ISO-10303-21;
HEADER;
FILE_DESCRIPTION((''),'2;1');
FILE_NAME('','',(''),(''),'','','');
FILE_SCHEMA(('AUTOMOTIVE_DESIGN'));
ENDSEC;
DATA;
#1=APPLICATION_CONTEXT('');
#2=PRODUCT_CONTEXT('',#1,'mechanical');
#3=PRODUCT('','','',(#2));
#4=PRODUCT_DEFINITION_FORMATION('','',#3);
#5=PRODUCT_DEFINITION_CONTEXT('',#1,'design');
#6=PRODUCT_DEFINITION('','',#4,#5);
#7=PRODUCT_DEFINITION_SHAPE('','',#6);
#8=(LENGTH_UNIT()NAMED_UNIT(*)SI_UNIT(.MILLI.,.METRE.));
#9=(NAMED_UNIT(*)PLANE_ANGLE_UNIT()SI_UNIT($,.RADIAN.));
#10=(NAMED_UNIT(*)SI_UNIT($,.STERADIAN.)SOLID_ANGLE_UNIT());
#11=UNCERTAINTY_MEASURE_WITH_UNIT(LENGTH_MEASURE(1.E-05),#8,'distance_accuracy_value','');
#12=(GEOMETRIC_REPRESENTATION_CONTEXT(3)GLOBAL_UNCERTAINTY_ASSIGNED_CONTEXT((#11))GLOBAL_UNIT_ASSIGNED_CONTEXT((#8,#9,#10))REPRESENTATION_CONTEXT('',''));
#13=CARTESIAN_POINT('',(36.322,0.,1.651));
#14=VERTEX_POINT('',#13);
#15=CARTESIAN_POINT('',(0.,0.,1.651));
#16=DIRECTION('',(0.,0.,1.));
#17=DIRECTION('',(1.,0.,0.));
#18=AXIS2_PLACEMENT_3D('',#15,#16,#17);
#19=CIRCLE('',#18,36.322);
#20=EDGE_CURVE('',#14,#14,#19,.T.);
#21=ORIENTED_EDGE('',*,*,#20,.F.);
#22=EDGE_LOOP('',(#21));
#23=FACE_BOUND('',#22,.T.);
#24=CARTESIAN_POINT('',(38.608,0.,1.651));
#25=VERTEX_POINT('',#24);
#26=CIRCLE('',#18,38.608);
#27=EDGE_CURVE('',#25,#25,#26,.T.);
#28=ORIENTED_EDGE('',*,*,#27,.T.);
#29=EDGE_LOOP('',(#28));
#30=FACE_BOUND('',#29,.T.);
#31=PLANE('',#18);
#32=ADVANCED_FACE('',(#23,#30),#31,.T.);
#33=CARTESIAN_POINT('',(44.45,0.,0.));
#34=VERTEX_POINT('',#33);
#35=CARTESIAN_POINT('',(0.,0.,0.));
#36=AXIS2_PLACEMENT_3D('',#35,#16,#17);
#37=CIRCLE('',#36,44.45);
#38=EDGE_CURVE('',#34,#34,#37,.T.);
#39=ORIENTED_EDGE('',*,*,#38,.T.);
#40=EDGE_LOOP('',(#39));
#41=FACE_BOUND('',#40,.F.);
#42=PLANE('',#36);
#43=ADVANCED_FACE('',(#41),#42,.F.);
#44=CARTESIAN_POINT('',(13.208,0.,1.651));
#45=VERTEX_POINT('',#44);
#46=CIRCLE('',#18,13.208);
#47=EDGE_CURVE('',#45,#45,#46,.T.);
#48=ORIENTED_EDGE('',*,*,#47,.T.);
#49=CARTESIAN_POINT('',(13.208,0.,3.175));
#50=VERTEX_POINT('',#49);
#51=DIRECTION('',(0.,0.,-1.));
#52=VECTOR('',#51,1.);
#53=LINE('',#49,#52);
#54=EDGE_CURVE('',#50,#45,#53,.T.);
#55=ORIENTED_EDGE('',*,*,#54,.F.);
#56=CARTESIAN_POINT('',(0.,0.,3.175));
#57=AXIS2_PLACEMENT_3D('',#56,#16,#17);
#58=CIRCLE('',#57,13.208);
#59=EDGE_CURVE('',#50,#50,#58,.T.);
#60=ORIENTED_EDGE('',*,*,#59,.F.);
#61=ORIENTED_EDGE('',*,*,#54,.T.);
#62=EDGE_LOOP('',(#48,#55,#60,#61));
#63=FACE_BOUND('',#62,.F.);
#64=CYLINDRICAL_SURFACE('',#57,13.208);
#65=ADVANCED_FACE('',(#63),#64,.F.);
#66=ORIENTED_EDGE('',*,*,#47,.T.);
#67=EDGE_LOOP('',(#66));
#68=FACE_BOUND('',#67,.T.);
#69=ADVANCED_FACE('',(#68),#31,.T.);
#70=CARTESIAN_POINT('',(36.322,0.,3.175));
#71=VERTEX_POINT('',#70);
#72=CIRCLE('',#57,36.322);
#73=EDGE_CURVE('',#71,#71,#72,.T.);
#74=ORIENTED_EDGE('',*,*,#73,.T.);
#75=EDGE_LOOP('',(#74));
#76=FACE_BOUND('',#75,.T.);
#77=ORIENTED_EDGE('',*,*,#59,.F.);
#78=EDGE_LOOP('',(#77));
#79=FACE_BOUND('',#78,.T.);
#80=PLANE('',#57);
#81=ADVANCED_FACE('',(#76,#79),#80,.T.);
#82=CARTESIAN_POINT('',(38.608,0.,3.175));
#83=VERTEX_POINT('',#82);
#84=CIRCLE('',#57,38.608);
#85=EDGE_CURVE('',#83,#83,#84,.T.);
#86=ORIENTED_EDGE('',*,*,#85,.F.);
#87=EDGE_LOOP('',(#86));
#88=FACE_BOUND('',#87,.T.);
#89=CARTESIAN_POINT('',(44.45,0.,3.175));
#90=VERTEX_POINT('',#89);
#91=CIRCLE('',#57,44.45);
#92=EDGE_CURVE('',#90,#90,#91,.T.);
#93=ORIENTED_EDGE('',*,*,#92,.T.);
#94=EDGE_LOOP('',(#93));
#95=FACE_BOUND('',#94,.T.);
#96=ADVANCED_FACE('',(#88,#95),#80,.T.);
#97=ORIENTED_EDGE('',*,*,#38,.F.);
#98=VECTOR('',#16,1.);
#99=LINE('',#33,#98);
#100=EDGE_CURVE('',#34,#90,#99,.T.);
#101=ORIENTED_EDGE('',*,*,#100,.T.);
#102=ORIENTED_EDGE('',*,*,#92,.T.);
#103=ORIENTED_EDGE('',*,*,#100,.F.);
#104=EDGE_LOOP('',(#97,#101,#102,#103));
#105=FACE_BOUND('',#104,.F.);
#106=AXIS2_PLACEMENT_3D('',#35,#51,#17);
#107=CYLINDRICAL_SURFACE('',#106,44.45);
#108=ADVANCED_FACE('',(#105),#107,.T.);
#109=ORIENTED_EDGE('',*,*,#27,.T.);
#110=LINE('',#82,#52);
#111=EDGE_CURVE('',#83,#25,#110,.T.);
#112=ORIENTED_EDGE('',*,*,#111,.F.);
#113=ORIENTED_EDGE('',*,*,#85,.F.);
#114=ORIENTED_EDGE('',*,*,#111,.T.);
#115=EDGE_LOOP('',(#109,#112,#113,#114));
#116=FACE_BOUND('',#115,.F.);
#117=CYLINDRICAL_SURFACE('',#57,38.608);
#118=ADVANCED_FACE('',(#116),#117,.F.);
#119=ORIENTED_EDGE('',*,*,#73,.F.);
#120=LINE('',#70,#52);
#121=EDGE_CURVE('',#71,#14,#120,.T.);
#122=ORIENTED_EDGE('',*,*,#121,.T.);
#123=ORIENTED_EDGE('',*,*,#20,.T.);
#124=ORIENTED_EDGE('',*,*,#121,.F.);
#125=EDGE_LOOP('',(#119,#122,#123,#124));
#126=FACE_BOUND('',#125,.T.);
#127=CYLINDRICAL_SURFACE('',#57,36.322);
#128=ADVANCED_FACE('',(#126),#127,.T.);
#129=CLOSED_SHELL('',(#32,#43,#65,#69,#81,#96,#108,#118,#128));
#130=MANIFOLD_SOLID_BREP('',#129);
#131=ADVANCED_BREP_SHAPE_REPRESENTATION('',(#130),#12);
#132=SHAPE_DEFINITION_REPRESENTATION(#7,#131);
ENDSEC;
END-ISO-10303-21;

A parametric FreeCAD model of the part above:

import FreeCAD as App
import Part
import Sketcher
from FreeCAD import Vector
Q = App.Units.Quantity

doc = App.newDocument("Part")
body = doc.addObject("PartDesign::Body", "Body")

sketch1 = body.newObject("Sketcher::SketchObject", "Sketch")
sketch1.AttachmentSupport = (doc.getObject("XY_Plane"), [""])
sketch1.MapMode = "FlatFace"
sketch1.addGeometry(Part.Circle(Vector(0, 0, 0), Vector(0, 0, 1), 44), False)
sketch1.addConstraint([
    Sketcher.Constraint("Coincident", 0, 3, -1, 1),
    Sketcher.Constraint("Diameter", 0, Q("3.5 in")),
])
pad1 = body.newObject("PartDesign::Pad", "Pad")
pad1.Profile = sketch1
pad1.Length = Q("0.125 in")

sketch2 = body.newObject("Sketcher::SketchObject", "Sketch001")
sketch2.AttachmentSupport = (doc.getObject("XY_Plane"), [""])
sketch2.MapMode = "FlatFace"
sketch2.AttachmentOffset = App.Placement(Vector(0, 0, 0.125 * 25.4), App.Rotation())
sketch2.addGeometry([
    Part.Circle(Vector(0, 0, 0), Vector(0, 0, 1), 39),
    Part.Circle(Vector(0, 0, 0), Vector(0, 0, 1), 36),
    Part.Circle(Vector(0, 0, 0), Vector(0, 0, 1), 13),
], False)
sketch2.addConstraint([
    Sketcher.Constraint("Coincident", 0, 3, -1, 1),
    Sketcher.Constraint("Coincident", 1, 3, -1, 1),
    Sketcher.Constraint("Coincident", 2, 3, -1, 1),
    Sketcher.Constraint("Diameter", 0, Q("3.04 in")),
    Sketcher.Constraint("Diameter", 1, Q("2.86 in")),
    Sketcher.Constraint("Diameter", 2, Q("1.04 in")),
])
pocket1 = body.newObject("PartDesign::Pocket", "Pocket")
pocket1.Profile = sketch2
pocket1.Length = Q("0.06 in")

doc.recompute()
